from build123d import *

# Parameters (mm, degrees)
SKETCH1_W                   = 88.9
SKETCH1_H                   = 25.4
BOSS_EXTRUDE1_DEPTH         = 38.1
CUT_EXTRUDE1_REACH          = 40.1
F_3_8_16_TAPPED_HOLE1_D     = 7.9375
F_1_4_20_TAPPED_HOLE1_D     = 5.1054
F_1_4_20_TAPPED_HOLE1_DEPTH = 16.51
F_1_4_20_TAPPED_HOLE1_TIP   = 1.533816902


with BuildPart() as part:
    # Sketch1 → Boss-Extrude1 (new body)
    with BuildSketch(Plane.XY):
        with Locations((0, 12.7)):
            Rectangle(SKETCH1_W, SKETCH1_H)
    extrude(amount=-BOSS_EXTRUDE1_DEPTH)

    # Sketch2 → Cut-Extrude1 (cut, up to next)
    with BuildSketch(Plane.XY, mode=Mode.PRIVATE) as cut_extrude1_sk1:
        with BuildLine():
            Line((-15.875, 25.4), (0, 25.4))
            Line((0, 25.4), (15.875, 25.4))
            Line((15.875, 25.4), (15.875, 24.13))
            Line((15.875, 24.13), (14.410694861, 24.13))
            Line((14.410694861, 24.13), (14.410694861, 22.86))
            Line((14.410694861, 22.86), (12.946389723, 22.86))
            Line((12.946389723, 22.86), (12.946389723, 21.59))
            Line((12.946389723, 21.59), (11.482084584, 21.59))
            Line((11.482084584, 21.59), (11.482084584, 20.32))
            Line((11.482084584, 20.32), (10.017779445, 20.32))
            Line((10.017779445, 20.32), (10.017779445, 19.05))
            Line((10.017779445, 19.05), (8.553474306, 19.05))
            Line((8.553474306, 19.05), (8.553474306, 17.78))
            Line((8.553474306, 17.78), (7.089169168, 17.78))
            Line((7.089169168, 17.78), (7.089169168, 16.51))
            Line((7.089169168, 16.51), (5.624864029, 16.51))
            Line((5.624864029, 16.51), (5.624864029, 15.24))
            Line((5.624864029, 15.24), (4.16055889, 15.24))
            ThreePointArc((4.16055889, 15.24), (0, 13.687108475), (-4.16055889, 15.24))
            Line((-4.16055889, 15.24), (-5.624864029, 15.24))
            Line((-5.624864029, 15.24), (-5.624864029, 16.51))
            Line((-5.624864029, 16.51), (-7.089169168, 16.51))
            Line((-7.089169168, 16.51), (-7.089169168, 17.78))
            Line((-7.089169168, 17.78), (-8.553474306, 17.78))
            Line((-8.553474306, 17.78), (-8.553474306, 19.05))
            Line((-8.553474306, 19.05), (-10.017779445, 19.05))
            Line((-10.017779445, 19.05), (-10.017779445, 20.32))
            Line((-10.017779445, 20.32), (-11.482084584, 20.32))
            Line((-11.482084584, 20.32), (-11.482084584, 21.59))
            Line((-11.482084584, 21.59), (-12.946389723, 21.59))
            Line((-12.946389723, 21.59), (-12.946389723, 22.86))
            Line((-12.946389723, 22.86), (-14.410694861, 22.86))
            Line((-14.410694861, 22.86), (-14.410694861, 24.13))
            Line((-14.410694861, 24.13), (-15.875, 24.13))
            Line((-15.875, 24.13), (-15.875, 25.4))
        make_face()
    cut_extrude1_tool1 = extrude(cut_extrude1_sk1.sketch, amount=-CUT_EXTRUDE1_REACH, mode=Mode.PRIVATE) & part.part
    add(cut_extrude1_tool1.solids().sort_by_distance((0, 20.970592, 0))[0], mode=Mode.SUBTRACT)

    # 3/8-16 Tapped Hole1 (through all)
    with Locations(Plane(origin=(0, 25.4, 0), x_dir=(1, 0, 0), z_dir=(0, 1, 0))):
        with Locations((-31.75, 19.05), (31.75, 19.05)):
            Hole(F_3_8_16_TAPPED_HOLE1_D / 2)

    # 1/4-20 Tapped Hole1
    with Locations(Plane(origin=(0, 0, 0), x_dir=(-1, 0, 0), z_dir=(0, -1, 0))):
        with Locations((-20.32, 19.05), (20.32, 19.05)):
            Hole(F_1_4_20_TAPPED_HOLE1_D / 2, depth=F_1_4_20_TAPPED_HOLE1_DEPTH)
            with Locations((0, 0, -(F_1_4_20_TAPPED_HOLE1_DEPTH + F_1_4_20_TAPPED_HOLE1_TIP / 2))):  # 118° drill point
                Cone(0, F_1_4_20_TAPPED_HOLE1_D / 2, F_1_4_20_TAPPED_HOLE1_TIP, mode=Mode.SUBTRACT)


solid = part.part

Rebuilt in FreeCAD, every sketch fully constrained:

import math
import FreeCAD as App
import Part
import Sketcher

V = App.Vector
Q = App.Units.Quantity

doc = App.newDocument("Part")
body = doc.addObject("PartDesign::Body", "Body")

# Sketch on XY plane
sketch1 = doc.addObject("Sketcher::SketchObject", "Sketch")
body.addObject(sketch1)
sketch1.AttachmentSupport = (doc.XY_Plane, [""])
sketch1.MapMode = "FlatFace"
sketch1.addGeometry([
    Part.LineSegment(V(-44, 25, 0), V(-44, 0, 0)),
    Part.LineSegment(V(-44, 0, 0), V(44, 0, 0)),
    Part.LineSegment(V(44, 0, 0), V(44, 25, 0)),
    Part.LineSegment(V(44, 25, 0), V(-44, 25, 0)),
], False)
sketch1.addConstraint([
    Sketcher.Constraint("Coincident", 0, 2, 1, 1),
    Sketcher.Constraint("Coincident", 1, 2, 2, 1),
    Sketcher.Constraint("Coincident", 2, 2, 3, 1),
    Sketcher.Constraint("Coincident", 3, 2, 0, 1),
    Sketcher.Constraint("Vertical", 0),
    Sketcher.Constraint("Horizontal", 1),
    Sketcher.Constraint("Vertical", 2),
    Sketcher.Constraint("Horizontal", 3),
    Sketcher.Constraint("Symmetric", 0, 2, 1, 2, -1, 1),
    Sketcher.Constraint("DistanceY", 0, 2, 0, 1, Q("1 in")),
    Sketcher.Constraint("DistanceX", 1, 1, 1, 2, Q("3.5 in")),
])
pad1 = doc.addObject("PartDesign::Pad", "Pad")
body.addObject(pad1)
pad1.Profile = sketch1
pad1.Length = Q("1.5 in")
pad1.Reversed = True

# Sketch on XY plane
sketch2 = doc.addObject("Sketcher::SketchObject", "Sketch001")
body.addObject(sketch2)
sketch2.AttachmentSupport = (doc.XY_Plane, [""])
sketch2.MapMode = "FlatFace"
sketch2.addGeometry([
    Part.LineSegment(V(15.9, 25.4, 0), V(-15.9, 25.4, 0)),  # 0
    Part.LineSegment(V(-15.9, 25.4, 0), V(-15.9, 24.1, 0)),  # 1
    Part.LineSegment(V(-15.9, 24.1, 0), V(-14.4, 24.1, 0)),  # 2
    Part.LineSegment(V(-14.4, 24.1, 0), V(-14.4, 22.9, 0)),  # 3
    Part.LineSegment(V(-14.4, 22.9, 0), V(-12.9, 22.9, 0)),  # 4
    Part.LineSegment(V(-12.9, 22.9, 0), V(-12.9, 21.6, 0)),  # 5
    Part.LineSegment(V(-12.9, 21.6, 0), V(-11.5, 21.6, 0)),  # 6
    Part.LineSegment(V(-11.5, 21.6, 0), V(-11.5, 20.3, 0)),  # 7
    Part.LineSegment(V(-11.5, 20.3, 0), V(-10, 20.3, 0)),  # 8
    Part.LineSegment(V(-10, 20.3, 0), V(-10, 19.1, 0)),  # 9
    Part.LineSegment(V(-10, 19.1, 0), V(-8.6, 19.1, 0)),  # 10
    Part.LineSegment(V(-8.6, 19.1, 0), V(-8.6, 17.8, 0)),  # 11
    Part.LineSegment(V(-8.6, 17.8, 0), V(-7.1, 17.8, 0)),  # 12
    Part.LineSegment(V(-7.1, 17.8, 0), V(-7.1, 16.5, 0)),  # 13
    Part.LineSegment(V(-7.1, 16.5, 0), V(-5.6, 16.5, 0)),  # 14
    Part.LineSegment(V(-5.6, 16.5, 0), V(-5.6, 15.2, 0)),  # 15
    Part.LineSegment(V(-5.6, 15.2, 0), V(-4.2, 15.2, 0)),  # 16
    Part.ArcOfCircle(Part.Circle(V(0, 20, 0), V(0, 0, 1), 6.3), math.radians(-131), math.radians(-49)),  # 17
    Part.LineSegment(V(4.2, 15.2, 0), V(5.6, 15.2, 0)),  # 18
    Part.LineSegment(V(5.6, 15.2, 0), V(5.6, 16.5, 0)),  # 19
    Part.LineSegment(V(5.6, 16.5, 0), V(7.1, 16.5, 0)),  # 20
    Part.LineSegment(V(7.1, 16.5, 0), V(7.1, 17.8, 0)),  # 21
    Part.LineSegment(V(7.1, 17.8, 0), V(8.6, 17.8, 0)),  # 22
    Part.LineSegment(V(8.6, 17.8, 0), V(8.6, 19.1, 0)),  # 23
    Part.LineSegment(V(8.6, 19.1, 0), V(10, 19.1, 0)),  # 24
    Part.LineSegment(V(10, 19.1, 0), V(10, 20.3, 0)),  # 25
    Part.LineSegment(V(10, 20.3, 0), V(11.5, 20.3, 0)),  # 26
    Part.LineSegment(V(11.5, 20.3, 0), V(11.5, 21.6, 0)),  # 27
    Part.LineSegment(V(11.5, 21.6, 0), V(12.9, 21.6, 0)),  # 28
    Part.LineSegment(V(12.9, 21.6, 0), V(12.9, 22.9, 0)),  # 29
    Part.LineSegment(V(12.9, 22.9, 0), V(14.4, 22.9, 0)),  # 30
    Part.LineSegment(V(14.4, 22.9, 0), V(14.4, 24.1, 0)),  # 31
    Part.LineSegment(V(14.4, 24.1, 0), V(15.9, 24.1, 0)),  # 32
    Part.LineSegment(V(15.9, 24.1, 0), V(15.9, 25.4, 0)),  # 33
], False)
sketch2.addConstraint([
    Sketcher.Constraint("Coincident", 0, 2, 1, 1),
    Sketcher.Constraint("Coincident", 1, 2, 2, 1),
    Sketcher.Constraint("Coincident", 2, 2, 3, 1),
    Sketcher.Constraint("Coincident", 3, 2, 4, 1),
    Sketcher.Constraint("Coincident", 4, 2, 5, 1),
    Sketcher.Constraint("Coincident", 5, 2, 6, 1),
    Sketcher.Constraint("Coincident", 6, 2, 7, 1),
    Sketcher.Constraint("Coincident", 7, 2, 8, 1),
    Sketcher.Constraint("Coincident", 8, 2, 9, 1),
    Sketcher.Constraint("Coincident", 9, 2, 10, 1),
    Sketcher.Constraint("Coincident", 10, 2, 11, 1),
    Sketcher.Constraint("Coincident", 11, 2, 12, 1),
    Sketcher.Constraint("Coincident", 12, 2, 13, 1),
    Sketcher.Constraint("Coincident", 13, 2, 14, 1),
    Sketcher.Constraint("Coincident", 14, 2, 15, 1),
    Sketcher.Constraint("Coincident", 15, 2, 16, 1),
    Sketcher.Constraint("Coincident", 16, 2, 17, 1),
    Sketcher.Constraint("Coincident", 17, 2, 18, 1),
    Sketcher.Constraint("Coincident", 18, 2, 19, 1),
    Sketcher.Constraint("Coincident", 19, 2, 20, 1),
    Sketcher.Constraint("Coincident", 20, 2, 21, 1),
    Sketcher.Constraint("Coincident", 21, 2, 22, 1),
    Sketcher.Constraint("Coincident", 22, 2, 23, 1),
    Sketcher.Constraint("Coincident", 23, 2, 24, 1),
    Sketcher.Constraint("Coincident", 24, 2, 25, 1),
    Sketcher.Constraint("Coincident", 25, 2, 26, 1),
    Sketcher.Constraint("Coincident", 26, 2, 27, 1),
    Sketcher.Constraint("Coincident", 27, 2, 28, 1),
    Sketcher.Constraint("Coincident", 28, 2, 29, 1),
    Sketcher.Constraint("Coincident", 29, 2, 30, 1),
    Sketcher.Constraint("Coincident", 30, 2, 31, 1),
    Sketcher.Constraint("Coincident", 31, 2, 32, 1),
    Sketcher.Constraint("Coincident", 32, 2, 33, 1),
    Sketcher.Constraint("Coincident", 33, 2, 0, 1),
    Sketcher.Constraint("Horizontal", 0),
    Sketcher.Constraint("Vertical", 1),
    Sketcher.Constraint("Horizontal", 2),
    Sketcher.Constraint("Vertical", 3),
    Sketcher.Constraint("Horizontal", 4),
    Sketcher.Constraint("Vertical", 5),
    Sketcher.Constraint("Horizontal", 6),
    Sketcher.Constraint("Vertical", 7),
    Sketcher.Constraint("Horizontal", 8),
    Sketcher.Constraint("Vertical", 9),
    Sketcher.Constraint("Horizontal", 10),
    Sketcher.Constraint("Vertical", 11),
    Sketcher.Constraint("Horizontal", 12),
    Sketcher.Constraint("Vertical", 13),
    Sketcher.Constraint("Horizontal", 14),
    Sketcher.Constraint("Vertical", 15),
    Sketcher.Constraint("Horizontal", 16),
    Sketcher.Constraint("Horizontal", 18),
    Sketcher.Constraint("Vertical", 19),
    Sketcher.Constraint("Horizontal", 20),
    Sketcher.Constraint("Vertical", 21),
    Sketcher.Constraint("Horizontal", 22),
    Sketcher.Constraint("Vertical", 23),
    Sketcher.Constraint("Horizontal", 24),
    Sketcher.Constraint("Vertical", 25),
    Sketcher.Constraint("Horizontal", 26),
    Sketcher.Constraint("Vertical", 27),
    Sketcher.Constraint("Horizontal", 28),
    Sketcher.Constraint("Vertical", 29),
    Sketcher.Constraint("Horizontal", 30),
    Sketcher.Constraint("Vertical", 31),
    Sketcher.Constraint("Horizontal", 32),
    Sketcher.Constraint("Vertical", 33),
    Sketcher.Constraint("Symmetric", 16, 2, 17, 2, -2),
    Sketcher.Constraint("Symmetric", 14, 2, 19, 2, -2),
    Sketcher.Constraint("Symmetric", 12, 2, 21, 2, -2),
    Sketcher.Constraint("Symmetric", 10, 2, 23, 2, -2),
    Sketcher.Constraint("Symmetric", 8, 2, 25, 2, -2),
    Sketcher.Constraint("Symmetric", 6, 2, 27, 2, -2),
    Sketcher.Constraint("Symmetric", 4, 2, 29, 2, -2),
    Sketcher.Constraint("Symmetric", 2, 2, 31, 2, -2),
    Sketcher.Constraint("Equal", 2, 4),
    Sketcher.Constraint("Equal", 4, 6),
    Sketcher.Constraint("Equal", 6, 8),
    Sketcher.Constraint("Equal", 8, 10),
    Sketcher.Constraint("Equal", 10, 12),
    Sketcher.Constraint("Equal", 12, 14),
    Sketcher.Constraint("Equal", 14, 16),
    Sketcher.Constraint("Equal", 30, 32),
    Sketcher.Constraint("Equal", 1, 3),
    Sketcher.Constraint("Equal", 3, 5),
    Sketcher.Constraint("Equal", 5, 7),
    Sketcher.Constraint("Equal", 7, 9),
    Sketcher.Constraint("Equal", 9, 11),
    Sketcher.Constraint("Equal", 11, 13),
    Sketcher.Constraint("Equal", 13, 15),
    Sketcher.Constraint("Radius", 17, Q("0.25 in")),
    Sketcher.Constraint("DistanceY", -1, 1, 0, 2, Q("1 in")),
    Sketcher.Constraint("DistanceX", 0, 2, 0, 1, Q("1.25 in")),
    Sketcher.Constraint("DistanceY", 1, 2, 1, 1, Q("0.05 in")),
    Sketcher.Constraint("DistanceX", 2, 1, 2, 2, Q("1.464305 mm")),
])
pocket1 = doc.addObject("PartDesign::Pocket", "Pocket")
body.addObject(pocket1)
pocket1.Profile = sketch2
pocket1.Type = "UpToFirst"

# Sketch on XZ plane
sketch3 = doc.addObject("Sketcher::SketchObject", "Sketch002")
body.addObject(sketch3)
sketch3.AttachmentSupport = (doc.XZ_Plane, [""])
sketch3.MapMode = "FlatFace"
sketch3.AttachmentOffset = App.Placement(V(0, 0, -1 * 25.4), App.Rotation())
sketch3.addGeometry([
    Part.Circle(V(-31.8, -19.1, 0), V(0, 0, 1), 4),
    Part.Circle(V(31.8, -19.1, 0), V(0, 0, 1), 4),
], False)
sketch3.addConstraint([
    Sketcher.Constraint("Equal", 0, 1),
    Sketcher.Constraint("Symmetric", 0, 3, 1, 3, -2),
    Sketcher.Constraint("Diameter", 0, Q("0.3125 in")),
    Sketcher.Constraint("DistanceX", 0, 3, 1, 3, Q("2.5 in")),
    Sketcher.Constraint("DistanceY", 0, 3, -1, 1, Q("0.75 in")),
])
doc.recompute()
hole = doc.addObject("PartDesign::Hole", "Hole")
body.addObject(hole)
hole.Profile = sketch3
hole.ThreadType = "None"
hole.Diameter = Q("0.3125 in")
hole.DepthType = "ThroughAll"
hole.Reversed = True

# Sketch on XZ plane
sketch4 = doc.addObject("Sketcher::SketchObject", "Sketch003")
body.addObject(sketch4)
sketch4.AttachmentSupport = (doc.XZ_Plane, [""])
sketch4.MapMode = "FlatFace"
sketch4.addGeometry([
    Part.Circle(V(20.3, -19.1, 0), V(0, 0, 1), 2.6),
    Part.Circle(V(-20.3, -19.1, 0), V(0, 0, 1), 2.6),
], False)
sketch4.addConstraint([
    Sketcher.Constraint("Equal", 0, 1),
    Sketcher.Constraint("Symmetric", 0, 3, 1, 3, -2),
    Sketcher.Constraint("Diameter", 0, Q("0.201 in")),
    Sketcher.Constraint("DistanceX", -1, 1, 0, 3, Q("0.8 in")),
    Sketcher.Constraint("DistanceY", 0, 3, -1, 1, Q("0.75 in")),
])
doc.recompute()
hole2 = doc.addObject("PartDesign::Hole", "Hole001")
body.addObject(hole2)
hole2.Profile = sketch4
hole2.ThreadType = "None"
hole2.Diameter = Q("0.201 in")
hole2.DepthType = "Dimension"
hole2.Depth = Q("0.65 in")
hole2.DrillPoint = "Angled"
hole2.DrillPointAngle = 118

doc.recompute()
